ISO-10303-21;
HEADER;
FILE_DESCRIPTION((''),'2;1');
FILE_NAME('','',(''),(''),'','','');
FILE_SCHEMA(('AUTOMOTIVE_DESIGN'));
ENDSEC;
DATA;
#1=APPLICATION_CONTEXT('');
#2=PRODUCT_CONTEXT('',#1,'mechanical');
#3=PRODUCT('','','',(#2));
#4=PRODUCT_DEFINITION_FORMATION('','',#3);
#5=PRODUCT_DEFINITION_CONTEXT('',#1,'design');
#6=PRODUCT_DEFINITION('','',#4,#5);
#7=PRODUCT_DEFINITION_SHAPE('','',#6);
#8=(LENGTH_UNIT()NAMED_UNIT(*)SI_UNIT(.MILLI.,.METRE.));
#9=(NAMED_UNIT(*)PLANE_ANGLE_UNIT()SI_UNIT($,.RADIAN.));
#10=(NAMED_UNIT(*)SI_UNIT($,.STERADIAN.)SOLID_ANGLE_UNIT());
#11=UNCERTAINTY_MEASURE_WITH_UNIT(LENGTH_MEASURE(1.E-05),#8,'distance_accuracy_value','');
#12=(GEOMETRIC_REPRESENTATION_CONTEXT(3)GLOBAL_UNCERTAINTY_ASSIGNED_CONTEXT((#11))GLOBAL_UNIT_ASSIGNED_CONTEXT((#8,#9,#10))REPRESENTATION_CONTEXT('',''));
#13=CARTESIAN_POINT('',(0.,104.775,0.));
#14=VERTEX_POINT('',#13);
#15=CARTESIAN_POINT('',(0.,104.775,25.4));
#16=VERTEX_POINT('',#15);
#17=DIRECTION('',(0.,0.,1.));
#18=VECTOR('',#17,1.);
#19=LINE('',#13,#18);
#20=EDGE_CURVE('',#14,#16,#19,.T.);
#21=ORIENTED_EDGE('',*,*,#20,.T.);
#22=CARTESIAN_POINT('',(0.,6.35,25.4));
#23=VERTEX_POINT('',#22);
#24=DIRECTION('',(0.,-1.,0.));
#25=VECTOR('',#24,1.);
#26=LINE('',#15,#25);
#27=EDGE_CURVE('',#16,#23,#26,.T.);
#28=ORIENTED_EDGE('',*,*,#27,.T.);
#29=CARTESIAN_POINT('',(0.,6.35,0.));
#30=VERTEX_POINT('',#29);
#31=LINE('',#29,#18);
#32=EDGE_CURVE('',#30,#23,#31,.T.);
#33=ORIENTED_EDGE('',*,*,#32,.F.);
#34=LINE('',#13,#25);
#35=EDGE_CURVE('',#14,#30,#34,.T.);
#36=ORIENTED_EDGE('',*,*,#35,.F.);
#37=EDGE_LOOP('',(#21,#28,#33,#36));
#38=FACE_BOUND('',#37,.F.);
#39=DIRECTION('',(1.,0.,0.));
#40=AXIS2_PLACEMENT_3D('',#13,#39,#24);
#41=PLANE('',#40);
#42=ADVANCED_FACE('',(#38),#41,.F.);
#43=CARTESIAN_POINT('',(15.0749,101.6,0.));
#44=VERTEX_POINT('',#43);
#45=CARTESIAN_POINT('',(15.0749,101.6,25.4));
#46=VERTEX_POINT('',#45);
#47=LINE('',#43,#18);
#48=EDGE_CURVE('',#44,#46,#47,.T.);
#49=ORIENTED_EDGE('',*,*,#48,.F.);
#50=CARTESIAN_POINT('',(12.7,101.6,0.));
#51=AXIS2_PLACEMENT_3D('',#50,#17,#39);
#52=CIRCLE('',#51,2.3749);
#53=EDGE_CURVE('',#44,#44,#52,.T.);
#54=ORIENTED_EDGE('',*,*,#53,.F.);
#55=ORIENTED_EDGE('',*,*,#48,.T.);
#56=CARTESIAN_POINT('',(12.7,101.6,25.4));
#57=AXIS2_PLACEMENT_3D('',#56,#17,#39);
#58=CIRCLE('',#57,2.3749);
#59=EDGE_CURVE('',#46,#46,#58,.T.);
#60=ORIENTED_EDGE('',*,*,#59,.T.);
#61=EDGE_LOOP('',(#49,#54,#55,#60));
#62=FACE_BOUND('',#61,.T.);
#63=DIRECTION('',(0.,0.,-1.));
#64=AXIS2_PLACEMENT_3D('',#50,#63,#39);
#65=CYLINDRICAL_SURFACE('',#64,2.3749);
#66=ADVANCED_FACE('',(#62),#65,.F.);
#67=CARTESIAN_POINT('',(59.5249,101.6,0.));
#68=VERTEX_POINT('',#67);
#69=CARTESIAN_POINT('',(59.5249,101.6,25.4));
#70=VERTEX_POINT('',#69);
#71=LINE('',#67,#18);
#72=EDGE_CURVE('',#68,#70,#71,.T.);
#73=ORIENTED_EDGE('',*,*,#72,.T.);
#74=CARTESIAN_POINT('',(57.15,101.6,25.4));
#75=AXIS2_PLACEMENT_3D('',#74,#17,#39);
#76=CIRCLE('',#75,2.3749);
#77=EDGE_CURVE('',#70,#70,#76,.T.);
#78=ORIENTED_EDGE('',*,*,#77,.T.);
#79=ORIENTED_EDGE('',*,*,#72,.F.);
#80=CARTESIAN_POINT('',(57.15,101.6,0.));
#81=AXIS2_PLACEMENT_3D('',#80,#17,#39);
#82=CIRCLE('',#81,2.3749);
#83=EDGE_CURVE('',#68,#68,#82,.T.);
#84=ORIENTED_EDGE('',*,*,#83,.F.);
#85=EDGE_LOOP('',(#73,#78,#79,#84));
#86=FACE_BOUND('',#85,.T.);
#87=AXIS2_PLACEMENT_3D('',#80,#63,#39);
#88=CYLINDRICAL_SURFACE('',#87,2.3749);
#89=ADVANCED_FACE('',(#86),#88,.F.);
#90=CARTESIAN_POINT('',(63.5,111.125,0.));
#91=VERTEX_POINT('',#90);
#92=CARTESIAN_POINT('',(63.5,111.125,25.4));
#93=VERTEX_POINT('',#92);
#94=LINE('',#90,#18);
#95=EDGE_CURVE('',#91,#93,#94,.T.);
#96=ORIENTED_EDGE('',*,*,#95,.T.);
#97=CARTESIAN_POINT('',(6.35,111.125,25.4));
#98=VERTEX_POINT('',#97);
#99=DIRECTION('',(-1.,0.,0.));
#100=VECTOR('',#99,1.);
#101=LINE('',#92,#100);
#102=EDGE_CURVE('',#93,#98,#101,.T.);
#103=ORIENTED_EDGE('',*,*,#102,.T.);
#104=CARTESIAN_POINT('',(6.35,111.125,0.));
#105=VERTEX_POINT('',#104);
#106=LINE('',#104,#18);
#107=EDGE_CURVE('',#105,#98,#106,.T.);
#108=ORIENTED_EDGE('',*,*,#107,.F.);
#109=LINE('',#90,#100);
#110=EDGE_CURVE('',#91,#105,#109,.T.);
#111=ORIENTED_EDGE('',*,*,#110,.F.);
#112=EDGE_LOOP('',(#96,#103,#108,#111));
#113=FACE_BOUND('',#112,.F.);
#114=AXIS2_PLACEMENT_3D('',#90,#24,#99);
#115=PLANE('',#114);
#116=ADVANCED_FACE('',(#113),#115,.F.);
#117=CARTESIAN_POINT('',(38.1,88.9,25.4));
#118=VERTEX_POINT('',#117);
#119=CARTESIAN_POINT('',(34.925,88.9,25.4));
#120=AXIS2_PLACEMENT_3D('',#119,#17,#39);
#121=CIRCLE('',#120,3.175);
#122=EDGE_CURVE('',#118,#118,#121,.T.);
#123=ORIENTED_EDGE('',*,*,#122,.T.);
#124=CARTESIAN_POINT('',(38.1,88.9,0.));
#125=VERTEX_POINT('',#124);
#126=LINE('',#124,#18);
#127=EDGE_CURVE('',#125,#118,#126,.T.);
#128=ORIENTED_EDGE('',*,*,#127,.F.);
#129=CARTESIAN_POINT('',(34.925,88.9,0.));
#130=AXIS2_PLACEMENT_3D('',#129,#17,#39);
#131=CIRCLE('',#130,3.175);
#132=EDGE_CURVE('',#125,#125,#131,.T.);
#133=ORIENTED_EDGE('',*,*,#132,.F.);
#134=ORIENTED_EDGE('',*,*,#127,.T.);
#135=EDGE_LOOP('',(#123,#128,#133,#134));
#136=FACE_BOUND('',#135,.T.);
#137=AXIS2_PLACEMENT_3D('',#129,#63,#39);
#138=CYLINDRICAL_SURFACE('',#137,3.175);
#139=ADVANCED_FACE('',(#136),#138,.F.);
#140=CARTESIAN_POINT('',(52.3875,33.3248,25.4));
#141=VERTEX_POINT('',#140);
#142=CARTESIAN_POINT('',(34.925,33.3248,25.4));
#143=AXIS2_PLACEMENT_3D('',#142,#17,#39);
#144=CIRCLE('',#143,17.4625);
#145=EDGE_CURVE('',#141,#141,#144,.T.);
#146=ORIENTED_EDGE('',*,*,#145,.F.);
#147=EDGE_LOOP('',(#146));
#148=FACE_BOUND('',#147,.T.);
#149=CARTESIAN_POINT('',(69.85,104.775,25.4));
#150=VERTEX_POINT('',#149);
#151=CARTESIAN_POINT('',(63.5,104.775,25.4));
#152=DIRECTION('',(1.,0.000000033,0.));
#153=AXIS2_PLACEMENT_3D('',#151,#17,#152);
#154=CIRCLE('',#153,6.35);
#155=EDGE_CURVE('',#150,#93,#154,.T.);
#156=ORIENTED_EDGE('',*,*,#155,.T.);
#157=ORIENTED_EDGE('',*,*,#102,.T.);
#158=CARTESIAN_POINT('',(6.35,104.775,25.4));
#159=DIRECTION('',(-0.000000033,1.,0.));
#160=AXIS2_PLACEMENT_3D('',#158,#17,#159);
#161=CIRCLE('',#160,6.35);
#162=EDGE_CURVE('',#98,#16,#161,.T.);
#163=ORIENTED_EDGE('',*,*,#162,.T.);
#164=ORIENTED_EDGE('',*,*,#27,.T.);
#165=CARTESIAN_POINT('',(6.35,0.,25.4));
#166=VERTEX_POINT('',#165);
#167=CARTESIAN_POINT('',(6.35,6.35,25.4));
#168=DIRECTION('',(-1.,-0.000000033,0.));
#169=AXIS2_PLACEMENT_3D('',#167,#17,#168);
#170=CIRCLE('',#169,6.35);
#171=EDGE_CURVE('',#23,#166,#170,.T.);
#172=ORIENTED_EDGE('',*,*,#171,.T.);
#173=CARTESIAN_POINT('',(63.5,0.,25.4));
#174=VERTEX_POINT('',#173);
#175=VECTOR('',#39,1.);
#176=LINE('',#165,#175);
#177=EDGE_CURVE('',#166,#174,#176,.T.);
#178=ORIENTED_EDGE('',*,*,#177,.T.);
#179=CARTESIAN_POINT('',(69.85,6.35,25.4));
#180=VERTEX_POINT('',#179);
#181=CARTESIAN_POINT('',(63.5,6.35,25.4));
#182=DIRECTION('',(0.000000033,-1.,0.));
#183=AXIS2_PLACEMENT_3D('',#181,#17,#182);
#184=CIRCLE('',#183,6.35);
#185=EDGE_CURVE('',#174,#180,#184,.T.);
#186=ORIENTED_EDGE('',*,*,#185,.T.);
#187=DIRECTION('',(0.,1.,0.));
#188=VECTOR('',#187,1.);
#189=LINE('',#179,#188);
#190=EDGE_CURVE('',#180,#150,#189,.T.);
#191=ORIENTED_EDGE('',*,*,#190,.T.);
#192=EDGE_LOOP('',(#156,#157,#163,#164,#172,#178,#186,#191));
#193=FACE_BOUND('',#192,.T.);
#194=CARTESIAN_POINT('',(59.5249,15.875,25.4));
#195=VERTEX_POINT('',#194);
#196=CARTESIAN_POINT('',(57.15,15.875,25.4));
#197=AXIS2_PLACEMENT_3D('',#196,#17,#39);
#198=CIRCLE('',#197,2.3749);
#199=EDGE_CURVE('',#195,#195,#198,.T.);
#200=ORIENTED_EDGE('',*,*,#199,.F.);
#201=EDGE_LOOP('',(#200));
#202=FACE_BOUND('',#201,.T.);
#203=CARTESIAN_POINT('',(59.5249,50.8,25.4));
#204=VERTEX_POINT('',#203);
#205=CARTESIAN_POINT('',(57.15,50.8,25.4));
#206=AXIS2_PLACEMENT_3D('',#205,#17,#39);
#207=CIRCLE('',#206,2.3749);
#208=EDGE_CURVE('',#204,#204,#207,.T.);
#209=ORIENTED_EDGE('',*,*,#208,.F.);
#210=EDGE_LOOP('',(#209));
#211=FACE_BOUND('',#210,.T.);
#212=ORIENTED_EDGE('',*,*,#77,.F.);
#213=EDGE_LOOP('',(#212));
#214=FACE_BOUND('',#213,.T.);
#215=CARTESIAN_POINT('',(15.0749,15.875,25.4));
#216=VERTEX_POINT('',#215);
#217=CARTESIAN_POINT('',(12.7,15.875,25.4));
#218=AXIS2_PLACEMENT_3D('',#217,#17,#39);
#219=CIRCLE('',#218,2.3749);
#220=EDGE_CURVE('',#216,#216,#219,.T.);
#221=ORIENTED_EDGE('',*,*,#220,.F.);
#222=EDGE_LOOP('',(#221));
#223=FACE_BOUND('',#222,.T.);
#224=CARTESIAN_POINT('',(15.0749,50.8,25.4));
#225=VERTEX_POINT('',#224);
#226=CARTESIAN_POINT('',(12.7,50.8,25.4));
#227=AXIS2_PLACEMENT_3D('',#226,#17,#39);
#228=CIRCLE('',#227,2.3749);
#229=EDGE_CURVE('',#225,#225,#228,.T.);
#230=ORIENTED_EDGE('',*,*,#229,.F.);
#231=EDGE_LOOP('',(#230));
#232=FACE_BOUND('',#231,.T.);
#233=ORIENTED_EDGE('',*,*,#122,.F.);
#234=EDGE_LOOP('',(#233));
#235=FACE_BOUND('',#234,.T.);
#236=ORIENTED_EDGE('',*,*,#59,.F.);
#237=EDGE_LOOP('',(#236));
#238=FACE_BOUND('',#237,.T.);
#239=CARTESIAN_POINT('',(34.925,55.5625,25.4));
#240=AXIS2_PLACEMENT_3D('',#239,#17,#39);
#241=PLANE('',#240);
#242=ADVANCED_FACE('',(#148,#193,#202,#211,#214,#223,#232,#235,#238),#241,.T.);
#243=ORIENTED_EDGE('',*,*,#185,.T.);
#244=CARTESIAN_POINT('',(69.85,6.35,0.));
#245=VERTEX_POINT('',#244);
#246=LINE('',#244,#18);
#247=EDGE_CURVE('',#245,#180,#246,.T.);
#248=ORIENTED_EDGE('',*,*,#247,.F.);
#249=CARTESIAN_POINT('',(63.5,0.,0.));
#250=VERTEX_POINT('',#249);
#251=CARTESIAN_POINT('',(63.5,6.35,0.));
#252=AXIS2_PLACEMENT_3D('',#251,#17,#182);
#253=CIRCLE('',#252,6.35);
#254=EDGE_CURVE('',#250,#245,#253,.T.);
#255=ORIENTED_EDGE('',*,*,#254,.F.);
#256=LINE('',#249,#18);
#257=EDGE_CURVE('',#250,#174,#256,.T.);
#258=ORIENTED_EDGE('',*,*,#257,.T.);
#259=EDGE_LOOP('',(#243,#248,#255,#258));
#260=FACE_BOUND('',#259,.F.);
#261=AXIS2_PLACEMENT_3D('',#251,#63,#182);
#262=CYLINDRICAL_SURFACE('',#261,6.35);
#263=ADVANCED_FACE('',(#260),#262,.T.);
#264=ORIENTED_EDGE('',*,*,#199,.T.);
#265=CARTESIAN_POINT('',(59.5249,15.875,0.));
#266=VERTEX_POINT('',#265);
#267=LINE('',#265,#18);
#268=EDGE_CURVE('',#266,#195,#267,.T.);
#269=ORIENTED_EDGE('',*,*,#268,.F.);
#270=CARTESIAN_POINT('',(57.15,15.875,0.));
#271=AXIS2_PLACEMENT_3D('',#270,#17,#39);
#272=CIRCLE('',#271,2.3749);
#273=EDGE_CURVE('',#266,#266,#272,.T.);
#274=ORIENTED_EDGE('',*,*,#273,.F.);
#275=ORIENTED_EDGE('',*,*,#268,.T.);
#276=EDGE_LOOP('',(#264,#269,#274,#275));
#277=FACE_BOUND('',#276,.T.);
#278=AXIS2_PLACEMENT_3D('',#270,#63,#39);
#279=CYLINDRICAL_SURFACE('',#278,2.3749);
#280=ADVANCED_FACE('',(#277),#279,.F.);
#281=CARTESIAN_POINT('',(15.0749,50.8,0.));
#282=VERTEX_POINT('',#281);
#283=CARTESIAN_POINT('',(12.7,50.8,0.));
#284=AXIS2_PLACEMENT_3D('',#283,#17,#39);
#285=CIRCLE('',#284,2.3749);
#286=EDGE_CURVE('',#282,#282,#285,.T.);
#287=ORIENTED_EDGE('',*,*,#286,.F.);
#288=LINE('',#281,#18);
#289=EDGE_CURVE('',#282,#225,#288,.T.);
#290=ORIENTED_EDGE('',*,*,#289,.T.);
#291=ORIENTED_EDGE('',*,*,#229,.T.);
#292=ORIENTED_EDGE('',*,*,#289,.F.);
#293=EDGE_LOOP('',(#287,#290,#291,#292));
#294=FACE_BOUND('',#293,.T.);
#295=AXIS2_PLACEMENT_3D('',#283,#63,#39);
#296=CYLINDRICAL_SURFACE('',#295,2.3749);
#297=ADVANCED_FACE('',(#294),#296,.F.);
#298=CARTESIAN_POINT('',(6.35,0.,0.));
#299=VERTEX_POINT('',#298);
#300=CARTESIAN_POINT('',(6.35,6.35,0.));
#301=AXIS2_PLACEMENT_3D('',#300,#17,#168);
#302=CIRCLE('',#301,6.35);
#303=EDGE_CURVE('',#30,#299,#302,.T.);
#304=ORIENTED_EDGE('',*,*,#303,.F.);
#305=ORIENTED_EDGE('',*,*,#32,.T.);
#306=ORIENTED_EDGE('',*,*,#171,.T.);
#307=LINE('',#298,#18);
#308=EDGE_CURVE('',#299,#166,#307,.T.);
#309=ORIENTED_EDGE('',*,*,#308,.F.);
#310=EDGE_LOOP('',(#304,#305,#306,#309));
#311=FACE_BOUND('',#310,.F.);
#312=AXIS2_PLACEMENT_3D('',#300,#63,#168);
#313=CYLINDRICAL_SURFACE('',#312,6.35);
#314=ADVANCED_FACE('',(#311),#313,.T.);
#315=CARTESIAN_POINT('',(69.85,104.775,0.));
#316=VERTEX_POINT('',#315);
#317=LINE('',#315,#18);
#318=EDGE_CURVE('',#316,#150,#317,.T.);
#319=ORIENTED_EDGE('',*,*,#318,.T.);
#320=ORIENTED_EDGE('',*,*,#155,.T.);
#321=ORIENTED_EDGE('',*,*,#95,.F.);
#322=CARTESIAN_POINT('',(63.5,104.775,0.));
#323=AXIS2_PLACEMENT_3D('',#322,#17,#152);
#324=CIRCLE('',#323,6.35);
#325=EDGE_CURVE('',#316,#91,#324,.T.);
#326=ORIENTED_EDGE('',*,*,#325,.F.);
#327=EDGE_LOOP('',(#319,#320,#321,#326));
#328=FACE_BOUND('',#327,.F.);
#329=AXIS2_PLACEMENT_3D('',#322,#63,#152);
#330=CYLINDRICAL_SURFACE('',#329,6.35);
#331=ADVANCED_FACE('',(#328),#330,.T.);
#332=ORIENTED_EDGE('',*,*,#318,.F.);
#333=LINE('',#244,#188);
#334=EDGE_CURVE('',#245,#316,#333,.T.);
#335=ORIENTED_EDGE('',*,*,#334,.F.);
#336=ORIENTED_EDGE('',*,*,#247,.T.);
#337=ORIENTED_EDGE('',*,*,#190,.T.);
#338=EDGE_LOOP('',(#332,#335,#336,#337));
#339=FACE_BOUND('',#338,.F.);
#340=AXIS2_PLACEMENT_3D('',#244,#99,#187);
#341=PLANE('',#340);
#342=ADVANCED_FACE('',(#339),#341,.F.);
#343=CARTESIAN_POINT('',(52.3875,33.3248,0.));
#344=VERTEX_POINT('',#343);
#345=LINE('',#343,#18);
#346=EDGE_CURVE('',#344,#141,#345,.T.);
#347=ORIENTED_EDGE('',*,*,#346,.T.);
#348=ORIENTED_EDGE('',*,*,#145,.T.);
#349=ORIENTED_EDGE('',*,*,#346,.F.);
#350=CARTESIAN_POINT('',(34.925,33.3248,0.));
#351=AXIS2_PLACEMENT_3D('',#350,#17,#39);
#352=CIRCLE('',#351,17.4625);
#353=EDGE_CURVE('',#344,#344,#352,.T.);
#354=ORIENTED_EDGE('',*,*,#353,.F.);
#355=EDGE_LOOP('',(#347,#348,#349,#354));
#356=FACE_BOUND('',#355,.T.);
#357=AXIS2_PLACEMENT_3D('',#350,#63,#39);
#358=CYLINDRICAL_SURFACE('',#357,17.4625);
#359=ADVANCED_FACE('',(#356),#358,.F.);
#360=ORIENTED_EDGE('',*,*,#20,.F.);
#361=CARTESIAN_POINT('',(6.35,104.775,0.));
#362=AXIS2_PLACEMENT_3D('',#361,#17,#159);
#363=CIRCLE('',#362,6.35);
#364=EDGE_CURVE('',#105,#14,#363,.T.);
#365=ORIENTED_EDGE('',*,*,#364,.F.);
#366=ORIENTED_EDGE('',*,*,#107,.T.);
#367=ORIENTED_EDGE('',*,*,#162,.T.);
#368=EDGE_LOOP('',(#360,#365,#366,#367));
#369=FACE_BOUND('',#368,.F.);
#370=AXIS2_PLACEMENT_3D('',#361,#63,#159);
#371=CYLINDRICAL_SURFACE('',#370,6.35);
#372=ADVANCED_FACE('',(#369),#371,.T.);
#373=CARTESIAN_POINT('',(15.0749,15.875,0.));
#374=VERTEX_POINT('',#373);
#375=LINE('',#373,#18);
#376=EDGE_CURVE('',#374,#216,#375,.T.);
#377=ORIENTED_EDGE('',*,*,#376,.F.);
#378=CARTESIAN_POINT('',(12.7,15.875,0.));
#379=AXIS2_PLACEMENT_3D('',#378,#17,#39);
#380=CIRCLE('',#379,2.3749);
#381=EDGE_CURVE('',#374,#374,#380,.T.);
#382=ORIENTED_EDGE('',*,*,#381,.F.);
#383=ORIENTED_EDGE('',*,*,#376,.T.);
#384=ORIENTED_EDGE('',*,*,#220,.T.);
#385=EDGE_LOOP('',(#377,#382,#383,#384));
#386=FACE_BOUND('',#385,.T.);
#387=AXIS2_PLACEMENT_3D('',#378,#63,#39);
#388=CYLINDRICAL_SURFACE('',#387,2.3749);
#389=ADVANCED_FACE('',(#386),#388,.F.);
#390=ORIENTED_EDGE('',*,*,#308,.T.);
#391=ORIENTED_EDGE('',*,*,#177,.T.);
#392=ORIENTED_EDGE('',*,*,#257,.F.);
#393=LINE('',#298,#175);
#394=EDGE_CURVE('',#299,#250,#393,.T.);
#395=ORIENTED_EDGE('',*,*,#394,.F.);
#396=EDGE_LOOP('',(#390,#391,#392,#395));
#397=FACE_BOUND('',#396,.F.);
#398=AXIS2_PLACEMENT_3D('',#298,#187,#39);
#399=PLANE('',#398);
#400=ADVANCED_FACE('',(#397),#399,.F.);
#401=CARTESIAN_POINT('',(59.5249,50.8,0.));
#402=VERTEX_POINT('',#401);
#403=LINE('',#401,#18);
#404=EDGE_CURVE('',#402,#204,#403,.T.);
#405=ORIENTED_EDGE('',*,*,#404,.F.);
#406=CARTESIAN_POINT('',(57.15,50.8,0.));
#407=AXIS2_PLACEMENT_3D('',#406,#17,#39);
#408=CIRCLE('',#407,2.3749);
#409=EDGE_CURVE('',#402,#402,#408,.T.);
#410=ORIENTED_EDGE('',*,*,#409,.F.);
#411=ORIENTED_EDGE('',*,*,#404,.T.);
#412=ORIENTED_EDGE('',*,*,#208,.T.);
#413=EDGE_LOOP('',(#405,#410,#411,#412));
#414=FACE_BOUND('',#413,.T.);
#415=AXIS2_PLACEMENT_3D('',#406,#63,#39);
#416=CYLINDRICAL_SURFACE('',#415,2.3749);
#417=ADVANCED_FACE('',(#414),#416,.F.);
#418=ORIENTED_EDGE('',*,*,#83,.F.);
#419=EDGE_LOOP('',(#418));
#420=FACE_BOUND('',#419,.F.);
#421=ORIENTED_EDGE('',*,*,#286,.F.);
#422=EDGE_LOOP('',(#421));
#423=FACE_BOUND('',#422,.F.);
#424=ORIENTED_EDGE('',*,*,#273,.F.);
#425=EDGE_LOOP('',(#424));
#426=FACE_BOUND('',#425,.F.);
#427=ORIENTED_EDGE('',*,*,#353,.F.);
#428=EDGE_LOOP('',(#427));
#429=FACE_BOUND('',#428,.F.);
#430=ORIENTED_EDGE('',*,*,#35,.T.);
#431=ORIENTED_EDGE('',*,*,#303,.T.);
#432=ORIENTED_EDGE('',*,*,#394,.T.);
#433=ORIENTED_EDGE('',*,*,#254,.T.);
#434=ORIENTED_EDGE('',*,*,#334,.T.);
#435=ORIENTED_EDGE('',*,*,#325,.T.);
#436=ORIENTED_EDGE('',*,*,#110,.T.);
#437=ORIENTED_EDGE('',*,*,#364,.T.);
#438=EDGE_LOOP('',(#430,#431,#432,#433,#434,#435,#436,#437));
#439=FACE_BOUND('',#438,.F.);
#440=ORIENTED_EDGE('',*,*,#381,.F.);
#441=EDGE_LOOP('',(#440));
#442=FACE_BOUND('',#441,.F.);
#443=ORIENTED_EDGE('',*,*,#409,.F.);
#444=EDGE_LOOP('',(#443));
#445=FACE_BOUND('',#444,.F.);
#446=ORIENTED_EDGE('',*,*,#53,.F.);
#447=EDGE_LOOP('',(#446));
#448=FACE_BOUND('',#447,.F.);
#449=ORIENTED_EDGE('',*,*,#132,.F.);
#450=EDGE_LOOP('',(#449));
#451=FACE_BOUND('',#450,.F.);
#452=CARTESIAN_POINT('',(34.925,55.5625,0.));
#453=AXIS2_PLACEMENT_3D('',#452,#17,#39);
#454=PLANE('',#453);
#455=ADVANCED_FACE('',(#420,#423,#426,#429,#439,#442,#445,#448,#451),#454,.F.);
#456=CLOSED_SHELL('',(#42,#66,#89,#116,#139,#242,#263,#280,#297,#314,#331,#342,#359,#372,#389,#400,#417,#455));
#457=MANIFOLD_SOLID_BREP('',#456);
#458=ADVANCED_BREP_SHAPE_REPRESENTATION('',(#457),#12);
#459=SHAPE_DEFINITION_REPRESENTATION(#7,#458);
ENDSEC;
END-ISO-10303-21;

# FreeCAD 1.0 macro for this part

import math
import FreeCAD as App
import Part
import Sketcher

V = App.Vector
Q = App.Units.Quantity

doc = App.newDocument("Part")
body = doc.addObject("PartDesign::Body", "Body")

# Sketch on XY plane
sketch1 = doc.addObject("Sketcher::SketchObject", "Sketch")
body.addObject(sketch1)
sketch1.AttachmentSupport = (doc.XY_Plane, [""])
sketch1.MapMode = "FlatFace"
sketch1.addGeometry(Part.ArcOfCircle(Part.Circle(V(6.4, 6.4, 0), V(0, 0, 1), 6.4), math.radians(-180), math.radians(-90)), False)
sketch1.addGeometry(Part.LineSegment(V(6.3, 0, 0), V(63.5, 0, 0)), False)
sketch1.addGeometry(Part.ArcOfCircle(Part.Circle(V(63.5, 6.4, 0), V(0, 0, 1), 6.4), math.radians(-90), math.radians(0)), False)
sketch1.addGeometry(Part.LineSegment(V(69.8, 6.3, 0), V(69.8, 104.8, 0)), False)
sketch1.addGeometry(Part.ArcOfCircle(Part.Circle(V(63.5, 104.8, 0), V(0, 0, 1), 6.4), math.radians(0), math.radians(90)), False)
sketch1.addGeometry(Part.LineSegment(V(63.5, 111.1, 0), V(6.3, 111.1, 0)), False)
sketch1.addGeometry(Part.ArcOfCircle(Part.Circle(V(6.4, 104.8, 0), V(0, 0, 1), 6.4), math.radians(90), math.radians(180)), False)
sketch1.addGeometry(Part.LineSegment(V(0, 104.8, 0), V(0, 6.3, 0)), False)
sketch1.addGeometry(Part.Circle(V(12.7, 15.9, 0), V(0, 0, 1), 2.4), False)
sketch1.addGeometry(Part.Circle(V(12.7, 50.8, 0), V(0, 0, 1), 2.4), False)
sketch1.addGeometry(Part.Circle(V(34.9, 33.3, 0), V(0, 0, 1), 17.5), False)
sketch1.addGeometry(Part.Circle(V(57.1, 15.9, 0), V(0, 0, 1), 2.4), False)
sketch1.addGeometry(Part.Circle(V(57.1, 50.8, 0), V(0, 0, 1), 2.4), False)
sketch1.addGeometry(Part.Circle(V(12.7, 101.6, 0), V(0, 0, 1), 2.4), False)
sketch1.addGeometry(Part.Circle(V(34.9, 88.9, 0), V(0, 0, 1), 3.2), False)
sketch1.addGeometry(Part.Circle(V(57.1, 101.6, 0), V(0, 0, 1), 2.4), False)
sketch1.addConstraint(Sketcher.Constraint("Tangent", 0, 2, 1, 1))
sketch1.addConstraint(Sketcher.Constraint("Tangent", 1, 2, 2, 1))
sketch1.addConstraint(Sketcher.Constraint("Tangent", 2, 2, 3, 1))
sketch1.addConstraint(Sketcher.Constraint("Tangent", 3, 2, 4, 1))
sketch1.addConstraint(Sketcher.Constraint("Tangent", 4, 2, 5, 1))
sketch1.addConstraint(Sketcher.Constraint("Tangent", 5, 2, 6, 1))
sketch1.addConstraint(Sketcher.Constraint("Tangent", 6, 2, 7, 1))
sketch1.addConstraint(Sketcher.Constraint("Tangent", 7, 2, 0, 1))
sketch1.addConstraint(Sketcher.Constraint("Horizontal", 1))
sketch1.addConstraint(Sketcher.Constraint("Vertical", 3))
sketch1.addConstraint(Sketcher.Constraint("Horizontal", 5))
sketch1.addConstraint(Sketcher.Constraint("Vertical", 7))
sketch1.addConstraint(Sketcher.Constraint("Equal", 0, 2))
sketch1.addConstraint(Sketcher.Constraint("Equal", 2, 4))
sketch1.addConstraint(Sketcher.Constraint("Equal", 4, 6))
sketch1.addConstraint(Sketcher.Constraint("Equal", 8, 9))
sketch1.addConstraint(Sketcher.Constraint("Equal", 9, 11))
sketch1.addConstraint(Sketcher.Constraint("Equal", 11, 12))
sketch1.addConstraint(Sketcher.Constraint("Equal", 12, 13))
sketch1.addConstraint(Sketcher.Constraint("Equal", 13, 15))
sketch1.addConstraint(Sketcher.Constraint("PointOnObject", 0, 2, -1))
sketch1.addConstraint(Sketcher.Constraint("PointOnObject", 6, 2, -2))
sketch1.addConstraint(Sketcher.Constraint("Horizontal", 8, 3, 11, 3))
sketch1.addConstraint(Sketcher.Constraint("Horizontal", 9, 3, 12, 3))
sketch1.addConstraint(Sketcher.Constraint("Horizontal", 13, 3, 15, 3))
sketch1.addConstraint(Sketcher.Constraint("Vertical", 8, 3, 9, 3))
sketch1.addConstraint(Sketcher.Constraint("Vertical", 11, 3, 12, 3))
sketch1.addConstraint(Sketcher.Constraint("Vertical", 9, 3, 13, 3))
sketch1.addConstraint(Sketcher.Constraint("Vertical", 10, 3, 14, 3))
sketch1.addConstraint(Sketcher.Constraint("Vertical", 12, 3, 15, 3))
sketch1.addConstraint(Sketcher.Constraint("Diameter", 14, Q("0.25 in")))
sketch1.addConstraint(Sketcher.Constraint("Radius", 0, Q("0.25 in")))
sketch1.addConstraint(Sketcher.Constraint("Diameter", 8, Q("0.187 in")))
sketch1.addConstraint(Sketcher.Constraint("Diameter", 10, Q("1.375 in")))
sketch1.addConstraint(Sketcher.Constraint("DistanceY", -1, 1, 9, 3, Q("2 in")))
sketch1.addConstraint(Sketcher.Constraint("DistanceY", -1, 1, 13, 3, Q("4 in")))
sketch1.addConstraint(Sketcher.Constraint("DistanceX", 8, 3, 2, 3, Q("2 in")))
sketch1.addConstraint(Sketcher.Constraint("DistanceX", 0, 3, 11, 3, Q("2 in")))
sketch1.addConstraint(Sketcher.Constraint("DistanceX", 1, 1, 1, 2, Q("2.25 in")))
sketch1.addConstraint(Sketcher.Constraint("DistanceY", -1, 1, 14, 3, Q("3.5 in")))
sketch1.addConstraint(Sketcher.Constraint("DistanceY", 8, 3, 6, 3, Q("3.5 in")))
sketch1.addConstraint(Sketcher.Constraint("DistanceY", 3, 1, 3, 2, Q("3.875 in")))
sketch1.addConstraint(Sketcher.Constraint("DistanceX", -1, 1, 10, 3, Q("1.375 in")))
sketch1.addConstraint(Sketcher.Constraint("DistanceY", -1, 1, 10, 3, Q("1.312 in")))
pad1 = doc.addObject("PartDesign::Pad", "Pad")
body.addObject(pad1)
pad1.Profile = sketch1
pad1.Length = Q("1 in")

doc.recompute()
